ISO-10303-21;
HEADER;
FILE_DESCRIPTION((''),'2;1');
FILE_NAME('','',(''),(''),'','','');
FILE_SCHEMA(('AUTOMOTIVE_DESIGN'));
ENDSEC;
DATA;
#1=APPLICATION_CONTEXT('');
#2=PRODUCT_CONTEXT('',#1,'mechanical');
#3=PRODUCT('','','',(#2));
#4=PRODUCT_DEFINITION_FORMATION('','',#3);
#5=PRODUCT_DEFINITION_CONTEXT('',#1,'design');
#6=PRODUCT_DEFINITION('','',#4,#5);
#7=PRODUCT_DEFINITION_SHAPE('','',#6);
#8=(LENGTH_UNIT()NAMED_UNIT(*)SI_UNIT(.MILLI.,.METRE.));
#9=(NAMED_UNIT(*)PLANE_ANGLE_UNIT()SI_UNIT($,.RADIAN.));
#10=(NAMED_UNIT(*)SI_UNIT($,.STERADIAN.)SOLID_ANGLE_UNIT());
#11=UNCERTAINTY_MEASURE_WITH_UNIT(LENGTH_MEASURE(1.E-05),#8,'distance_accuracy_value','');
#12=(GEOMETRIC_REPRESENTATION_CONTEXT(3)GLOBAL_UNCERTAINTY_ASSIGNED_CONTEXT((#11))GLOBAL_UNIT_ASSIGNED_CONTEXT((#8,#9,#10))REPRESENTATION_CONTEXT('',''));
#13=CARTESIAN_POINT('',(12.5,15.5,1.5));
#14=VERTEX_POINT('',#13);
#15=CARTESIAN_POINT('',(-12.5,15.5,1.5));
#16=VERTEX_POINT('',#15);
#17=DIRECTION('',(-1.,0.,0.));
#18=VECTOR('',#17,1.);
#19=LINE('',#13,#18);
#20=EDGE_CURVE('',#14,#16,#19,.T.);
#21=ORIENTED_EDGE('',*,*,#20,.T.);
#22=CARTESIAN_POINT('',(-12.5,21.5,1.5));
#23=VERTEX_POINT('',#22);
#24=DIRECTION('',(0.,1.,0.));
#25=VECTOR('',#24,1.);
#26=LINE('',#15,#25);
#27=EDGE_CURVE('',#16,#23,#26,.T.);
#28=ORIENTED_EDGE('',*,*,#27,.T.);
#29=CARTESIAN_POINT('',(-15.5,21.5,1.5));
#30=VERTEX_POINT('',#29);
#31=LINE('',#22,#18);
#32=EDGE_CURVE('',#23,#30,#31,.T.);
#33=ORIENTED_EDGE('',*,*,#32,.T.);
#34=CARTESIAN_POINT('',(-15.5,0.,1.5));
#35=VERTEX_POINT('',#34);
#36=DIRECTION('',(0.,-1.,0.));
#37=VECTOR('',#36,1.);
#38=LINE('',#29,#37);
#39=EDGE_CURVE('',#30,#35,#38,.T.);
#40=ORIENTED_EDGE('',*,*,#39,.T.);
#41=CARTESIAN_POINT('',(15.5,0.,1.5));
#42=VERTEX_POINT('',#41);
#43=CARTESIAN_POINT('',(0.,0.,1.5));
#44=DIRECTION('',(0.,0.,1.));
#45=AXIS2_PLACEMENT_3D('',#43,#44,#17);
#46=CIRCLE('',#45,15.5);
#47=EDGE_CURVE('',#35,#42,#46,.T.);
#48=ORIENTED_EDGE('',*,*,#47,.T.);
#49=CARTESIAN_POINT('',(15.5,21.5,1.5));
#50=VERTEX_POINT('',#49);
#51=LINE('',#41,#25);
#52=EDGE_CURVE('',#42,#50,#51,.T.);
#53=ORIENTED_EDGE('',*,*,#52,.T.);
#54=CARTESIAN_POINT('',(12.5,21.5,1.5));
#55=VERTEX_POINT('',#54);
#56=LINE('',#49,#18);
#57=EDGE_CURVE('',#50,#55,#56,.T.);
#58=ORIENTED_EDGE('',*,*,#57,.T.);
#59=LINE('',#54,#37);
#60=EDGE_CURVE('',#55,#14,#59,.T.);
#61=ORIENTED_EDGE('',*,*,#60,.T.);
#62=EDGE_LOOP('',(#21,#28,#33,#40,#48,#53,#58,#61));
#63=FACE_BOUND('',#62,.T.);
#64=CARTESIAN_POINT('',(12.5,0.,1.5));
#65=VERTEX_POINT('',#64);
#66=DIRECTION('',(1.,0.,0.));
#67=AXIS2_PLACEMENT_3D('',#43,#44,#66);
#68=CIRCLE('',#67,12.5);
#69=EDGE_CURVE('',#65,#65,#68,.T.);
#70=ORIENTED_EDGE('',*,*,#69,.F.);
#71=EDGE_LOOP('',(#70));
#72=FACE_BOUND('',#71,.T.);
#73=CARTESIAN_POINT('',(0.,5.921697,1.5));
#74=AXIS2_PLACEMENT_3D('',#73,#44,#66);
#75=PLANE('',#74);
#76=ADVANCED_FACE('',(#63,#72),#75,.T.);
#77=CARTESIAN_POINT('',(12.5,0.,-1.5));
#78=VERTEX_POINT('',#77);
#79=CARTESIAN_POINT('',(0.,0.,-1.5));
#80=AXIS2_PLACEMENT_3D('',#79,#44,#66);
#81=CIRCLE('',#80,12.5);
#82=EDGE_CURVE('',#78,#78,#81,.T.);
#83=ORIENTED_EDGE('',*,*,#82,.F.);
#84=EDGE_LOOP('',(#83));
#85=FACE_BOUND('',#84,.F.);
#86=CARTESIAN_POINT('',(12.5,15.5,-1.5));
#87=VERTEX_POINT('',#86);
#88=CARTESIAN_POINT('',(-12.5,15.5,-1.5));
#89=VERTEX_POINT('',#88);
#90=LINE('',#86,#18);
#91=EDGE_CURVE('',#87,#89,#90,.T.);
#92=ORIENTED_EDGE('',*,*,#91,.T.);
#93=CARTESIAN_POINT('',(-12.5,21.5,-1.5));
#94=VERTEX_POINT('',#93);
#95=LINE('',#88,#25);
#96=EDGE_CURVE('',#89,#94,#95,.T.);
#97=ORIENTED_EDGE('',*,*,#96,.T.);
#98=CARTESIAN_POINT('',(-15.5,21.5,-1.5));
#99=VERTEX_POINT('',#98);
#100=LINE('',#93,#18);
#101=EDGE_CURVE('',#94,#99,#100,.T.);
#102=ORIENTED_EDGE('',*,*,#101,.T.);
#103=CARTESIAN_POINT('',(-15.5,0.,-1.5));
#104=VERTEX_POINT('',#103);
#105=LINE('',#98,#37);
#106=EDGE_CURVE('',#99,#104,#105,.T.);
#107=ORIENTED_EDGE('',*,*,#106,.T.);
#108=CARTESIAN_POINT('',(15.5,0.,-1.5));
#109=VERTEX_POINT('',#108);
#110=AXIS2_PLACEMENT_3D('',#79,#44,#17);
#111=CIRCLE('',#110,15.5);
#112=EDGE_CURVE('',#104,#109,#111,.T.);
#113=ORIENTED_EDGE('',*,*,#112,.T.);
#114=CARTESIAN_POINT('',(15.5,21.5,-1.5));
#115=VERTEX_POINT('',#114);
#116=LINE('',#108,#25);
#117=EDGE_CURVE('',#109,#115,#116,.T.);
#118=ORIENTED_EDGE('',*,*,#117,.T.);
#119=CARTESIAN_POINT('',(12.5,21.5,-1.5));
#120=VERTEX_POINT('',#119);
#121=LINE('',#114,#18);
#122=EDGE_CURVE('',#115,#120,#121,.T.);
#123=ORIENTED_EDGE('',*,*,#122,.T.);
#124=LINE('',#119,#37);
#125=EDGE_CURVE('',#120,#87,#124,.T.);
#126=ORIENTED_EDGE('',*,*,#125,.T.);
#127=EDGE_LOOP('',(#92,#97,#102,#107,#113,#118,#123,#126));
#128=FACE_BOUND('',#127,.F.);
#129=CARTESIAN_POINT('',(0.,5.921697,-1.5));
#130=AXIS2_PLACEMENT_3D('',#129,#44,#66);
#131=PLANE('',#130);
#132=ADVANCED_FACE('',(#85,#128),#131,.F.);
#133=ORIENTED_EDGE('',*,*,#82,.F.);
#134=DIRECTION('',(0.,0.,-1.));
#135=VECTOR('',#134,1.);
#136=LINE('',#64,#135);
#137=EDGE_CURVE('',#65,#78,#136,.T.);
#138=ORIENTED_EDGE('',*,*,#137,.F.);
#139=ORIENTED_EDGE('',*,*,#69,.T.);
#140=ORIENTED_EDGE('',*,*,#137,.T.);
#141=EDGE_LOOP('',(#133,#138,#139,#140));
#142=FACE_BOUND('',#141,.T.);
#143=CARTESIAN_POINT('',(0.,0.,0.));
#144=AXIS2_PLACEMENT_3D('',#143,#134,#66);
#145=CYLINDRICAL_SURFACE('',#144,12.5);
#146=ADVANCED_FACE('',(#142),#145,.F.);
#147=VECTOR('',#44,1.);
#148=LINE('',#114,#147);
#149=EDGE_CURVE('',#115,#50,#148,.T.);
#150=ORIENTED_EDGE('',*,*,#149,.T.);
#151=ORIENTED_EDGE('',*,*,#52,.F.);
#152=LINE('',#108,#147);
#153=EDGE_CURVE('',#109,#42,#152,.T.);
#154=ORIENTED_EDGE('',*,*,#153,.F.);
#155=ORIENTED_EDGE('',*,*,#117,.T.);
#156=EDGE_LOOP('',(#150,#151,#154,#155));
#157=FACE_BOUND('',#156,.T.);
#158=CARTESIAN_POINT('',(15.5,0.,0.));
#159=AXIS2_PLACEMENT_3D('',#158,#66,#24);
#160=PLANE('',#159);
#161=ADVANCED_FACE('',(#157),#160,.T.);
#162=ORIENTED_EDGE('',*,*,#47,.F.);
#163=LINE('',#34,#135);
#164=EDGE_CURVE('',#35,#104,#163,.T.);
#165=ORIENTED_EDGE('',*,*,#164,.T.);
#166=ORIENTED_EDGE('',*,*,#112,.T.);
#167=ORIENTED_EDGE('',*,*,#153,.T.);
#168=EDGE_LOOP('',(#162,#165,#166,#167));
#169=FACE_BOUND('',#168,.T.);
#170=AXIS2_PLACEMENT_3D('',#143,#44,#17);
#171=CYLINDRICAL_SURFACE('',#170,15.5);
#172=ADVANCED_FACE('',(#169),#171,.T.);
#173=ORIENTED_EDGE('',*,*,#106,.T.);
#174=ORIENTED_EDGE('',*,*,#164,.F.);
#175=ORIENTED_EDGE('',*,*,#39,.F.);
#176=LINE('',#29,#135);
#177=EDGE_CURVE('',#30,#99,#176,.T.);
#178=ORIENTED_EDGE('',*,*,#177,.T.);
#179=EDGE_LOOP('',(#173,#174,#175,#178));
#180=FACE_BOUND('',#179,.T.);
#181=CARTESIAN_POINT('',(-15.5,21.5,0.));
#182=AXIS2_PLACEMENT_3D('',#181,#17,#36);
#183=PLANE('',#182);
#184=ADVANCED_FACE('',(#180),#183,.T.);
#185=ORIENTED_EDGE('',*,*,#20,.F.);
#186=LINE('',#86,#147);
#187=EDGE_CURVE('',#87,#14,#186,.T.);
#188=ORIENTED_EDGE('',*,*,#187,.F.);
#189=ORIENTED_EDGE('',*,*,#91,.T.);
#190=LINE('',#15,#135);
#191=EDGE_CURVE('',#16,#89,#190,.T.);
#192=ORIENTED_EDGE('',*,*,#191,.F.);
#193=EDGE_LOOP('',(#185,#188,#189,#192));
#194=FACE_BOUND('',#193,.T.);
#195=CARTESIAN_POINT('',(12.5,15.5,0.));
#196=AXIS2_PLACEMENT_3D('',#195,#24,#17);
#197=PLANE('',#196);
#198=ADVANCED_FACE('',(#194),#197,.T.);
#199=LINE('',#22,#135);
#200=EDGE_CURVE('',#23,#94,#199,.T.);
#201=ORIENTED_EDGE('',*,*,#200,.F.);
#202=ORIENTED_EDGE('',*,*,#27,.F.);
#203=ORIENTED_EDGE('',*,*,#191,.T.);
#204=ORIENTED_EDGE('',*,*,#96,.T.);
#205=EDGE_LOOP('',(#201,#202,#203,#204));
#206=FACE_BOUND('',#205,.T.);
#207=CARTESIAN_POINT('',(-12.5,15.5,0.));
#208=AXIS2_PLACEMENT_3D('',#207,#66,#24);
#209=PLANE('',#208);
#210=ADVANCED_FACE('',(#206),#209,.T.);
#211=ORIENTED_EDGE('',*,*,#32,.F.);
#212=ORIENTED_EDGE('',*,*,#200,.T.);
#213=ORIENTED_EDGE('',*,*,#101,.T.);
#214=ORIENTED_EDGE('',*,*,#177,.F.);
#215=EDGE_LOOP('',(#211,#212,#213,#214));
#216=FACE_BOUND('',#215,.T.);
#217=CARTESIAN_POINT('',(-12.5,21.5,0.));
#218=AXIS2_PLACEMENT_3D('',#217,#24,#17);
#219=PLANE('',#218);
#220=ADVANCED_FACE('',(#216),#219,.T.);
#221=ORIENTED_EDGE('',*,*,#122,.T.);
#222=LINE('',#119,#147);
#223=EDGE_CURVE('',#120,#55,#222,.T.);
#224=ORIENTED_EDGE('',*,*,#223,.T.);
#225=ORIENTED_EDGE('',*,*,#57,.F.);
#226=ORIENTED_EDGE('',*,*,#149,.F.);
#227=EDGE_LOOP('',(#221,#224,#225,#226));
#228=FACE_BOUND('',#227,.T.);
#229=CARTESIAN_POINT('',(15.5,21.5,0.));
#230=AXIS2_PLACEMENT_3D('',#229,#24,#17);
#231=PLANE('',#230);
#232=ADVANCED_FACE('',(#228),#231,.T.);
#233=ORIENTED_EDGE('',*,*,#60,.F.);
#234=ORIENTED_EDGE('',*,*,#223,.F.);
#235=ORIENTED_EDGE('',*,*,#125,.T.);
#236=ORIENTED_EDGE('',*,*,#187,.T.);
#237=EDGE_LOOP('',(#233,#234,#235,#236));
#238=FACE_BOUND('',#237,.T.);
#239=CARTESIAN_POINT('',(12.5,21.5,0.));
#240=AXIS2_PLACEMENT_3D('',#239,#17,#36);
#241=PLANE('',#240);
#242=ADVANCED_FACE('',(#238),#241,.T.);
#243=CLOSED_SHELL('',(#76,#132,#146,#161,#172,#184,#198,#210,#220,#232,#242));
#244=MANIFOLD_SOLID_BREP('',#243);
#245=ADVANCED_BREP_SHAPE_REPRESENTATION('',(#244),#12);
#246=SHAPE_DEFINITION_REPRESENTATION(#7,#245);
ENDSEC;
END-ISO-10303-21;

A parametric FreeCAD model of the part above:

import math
import FreeCAD as App
import Part
import Sketcher
Q = App.Units.Quantity

doc = App.newDocument("Part")
body = doc.addObject("PartDesign::Body", "Body")

sketch1 = body.newObject("Sketcher::SketchObject", "Sketch")
sketch1.AttachmentSupport = (doc.getObject("XY_Plane"), [""])
sketch1.MapMode = "FlatFace"
sketch1.addGeometry([
    Part.ArcOfCircle(Part.Circle(App.Vector(0, 0, 0), App.Vector(0, 0, 1), 15.5), math.radians(180), math.radians(360)),
    Part.LineSegment(App.Vector(15.5, 0, 0), App.Vector(15.5, 21.5, 0)),
    Part.LineSegment(App.Vector(15.5, 21.5, 0), App.Vector(12.5, 21.5, 0)),
    Part.LineSegment(App.Vector(12.5, 21.5, 0), App.Vector(12.5, 15.5, 0)),
    Part.LineSegment(App.Vector(12.5, 15.5, 0), App.Vector(-12.5, 15.5, 0)),
    Part.LineSegment(App.Vector(-12.5, 15.5, 0), App.Vector(-12.5, 21.5, 0)),
    Part.LineSegment(App.Vector(-12.5, 21.5, 0), App.Vector(-15.5, 21.5, 0)),
    Part.LineSegment(App.Vector(-15.5, 21.5, 0), App.Vector(-15.5, 0, 0)),
    Part.Circle(App.Vector(0, 0, 0), App.Vector(0, 0, 1), 12.5),
], False)
sketch1.addConstraint([
    Sketcher.Constraint("Tangent", 0, 2, 1, 1),
    Sketcher.Constraint("Coincident", 1, 2, 2, 1),
    Sketcher.Constraint("Coincident", 2, 2, 3, 1),
    Sketcher.Constraint("Coincident", 3, 2, 4, 1),
    Sketcher.Constraint("Coincident", 4, 2, 5, 1),
    Sketcher.Constraint("Coincident", 5, 2, 6, 1),
    Sketcher.Constraint("Coincident", 6, 2, 7, 1),
    Sketcher.Constraint("Tangent", 7, 2, 0, 1),
    Sketcher.Constraint("Vertical", 1),
    Sketcher.Constraint("Horizontal", 2),
    Sketcher.Constraint("Vertical", 3),
    Sketcher.Constraint("Horizontal", 4),
    Sketcher.Constraint("Vertical", 5),
    Sketcher.Constraint("Horizontal", 6),
    Sketcher.Constraint("Vertical", 7),
    Sketcher.Constraint("Coincident", 0, 3, -1, 1),
    Sketcher.Constraint("Coincident", 8, 3, -1, 1),
    Sketcher.Constraint("Symmetric", 2, 2, 5, 2, -2),
    Sketcher.Constraint("Diameter", 8, Q("25 mm")),
    Sketcher.Constraint("Radius", 0, Q("15.5 mm")),
    Sketcher.Constraint("DistanceX", 2, 2, 2, 1, Q("3 mm")),
    Sketcher.Constraint("DistanceY", 3, 2, 3, 1, Q("6 mm")),
    Sketcher.Constraint("DistanceY", 1, 1, 1, 2, Q("21.5 mm")),
])
pad1 = body.newObject("PartDesign::Pad", "Pad")
pad1.Profile = sketch1
pad1.Length = 3
pad1.Midplane = True

doc.recompute()
